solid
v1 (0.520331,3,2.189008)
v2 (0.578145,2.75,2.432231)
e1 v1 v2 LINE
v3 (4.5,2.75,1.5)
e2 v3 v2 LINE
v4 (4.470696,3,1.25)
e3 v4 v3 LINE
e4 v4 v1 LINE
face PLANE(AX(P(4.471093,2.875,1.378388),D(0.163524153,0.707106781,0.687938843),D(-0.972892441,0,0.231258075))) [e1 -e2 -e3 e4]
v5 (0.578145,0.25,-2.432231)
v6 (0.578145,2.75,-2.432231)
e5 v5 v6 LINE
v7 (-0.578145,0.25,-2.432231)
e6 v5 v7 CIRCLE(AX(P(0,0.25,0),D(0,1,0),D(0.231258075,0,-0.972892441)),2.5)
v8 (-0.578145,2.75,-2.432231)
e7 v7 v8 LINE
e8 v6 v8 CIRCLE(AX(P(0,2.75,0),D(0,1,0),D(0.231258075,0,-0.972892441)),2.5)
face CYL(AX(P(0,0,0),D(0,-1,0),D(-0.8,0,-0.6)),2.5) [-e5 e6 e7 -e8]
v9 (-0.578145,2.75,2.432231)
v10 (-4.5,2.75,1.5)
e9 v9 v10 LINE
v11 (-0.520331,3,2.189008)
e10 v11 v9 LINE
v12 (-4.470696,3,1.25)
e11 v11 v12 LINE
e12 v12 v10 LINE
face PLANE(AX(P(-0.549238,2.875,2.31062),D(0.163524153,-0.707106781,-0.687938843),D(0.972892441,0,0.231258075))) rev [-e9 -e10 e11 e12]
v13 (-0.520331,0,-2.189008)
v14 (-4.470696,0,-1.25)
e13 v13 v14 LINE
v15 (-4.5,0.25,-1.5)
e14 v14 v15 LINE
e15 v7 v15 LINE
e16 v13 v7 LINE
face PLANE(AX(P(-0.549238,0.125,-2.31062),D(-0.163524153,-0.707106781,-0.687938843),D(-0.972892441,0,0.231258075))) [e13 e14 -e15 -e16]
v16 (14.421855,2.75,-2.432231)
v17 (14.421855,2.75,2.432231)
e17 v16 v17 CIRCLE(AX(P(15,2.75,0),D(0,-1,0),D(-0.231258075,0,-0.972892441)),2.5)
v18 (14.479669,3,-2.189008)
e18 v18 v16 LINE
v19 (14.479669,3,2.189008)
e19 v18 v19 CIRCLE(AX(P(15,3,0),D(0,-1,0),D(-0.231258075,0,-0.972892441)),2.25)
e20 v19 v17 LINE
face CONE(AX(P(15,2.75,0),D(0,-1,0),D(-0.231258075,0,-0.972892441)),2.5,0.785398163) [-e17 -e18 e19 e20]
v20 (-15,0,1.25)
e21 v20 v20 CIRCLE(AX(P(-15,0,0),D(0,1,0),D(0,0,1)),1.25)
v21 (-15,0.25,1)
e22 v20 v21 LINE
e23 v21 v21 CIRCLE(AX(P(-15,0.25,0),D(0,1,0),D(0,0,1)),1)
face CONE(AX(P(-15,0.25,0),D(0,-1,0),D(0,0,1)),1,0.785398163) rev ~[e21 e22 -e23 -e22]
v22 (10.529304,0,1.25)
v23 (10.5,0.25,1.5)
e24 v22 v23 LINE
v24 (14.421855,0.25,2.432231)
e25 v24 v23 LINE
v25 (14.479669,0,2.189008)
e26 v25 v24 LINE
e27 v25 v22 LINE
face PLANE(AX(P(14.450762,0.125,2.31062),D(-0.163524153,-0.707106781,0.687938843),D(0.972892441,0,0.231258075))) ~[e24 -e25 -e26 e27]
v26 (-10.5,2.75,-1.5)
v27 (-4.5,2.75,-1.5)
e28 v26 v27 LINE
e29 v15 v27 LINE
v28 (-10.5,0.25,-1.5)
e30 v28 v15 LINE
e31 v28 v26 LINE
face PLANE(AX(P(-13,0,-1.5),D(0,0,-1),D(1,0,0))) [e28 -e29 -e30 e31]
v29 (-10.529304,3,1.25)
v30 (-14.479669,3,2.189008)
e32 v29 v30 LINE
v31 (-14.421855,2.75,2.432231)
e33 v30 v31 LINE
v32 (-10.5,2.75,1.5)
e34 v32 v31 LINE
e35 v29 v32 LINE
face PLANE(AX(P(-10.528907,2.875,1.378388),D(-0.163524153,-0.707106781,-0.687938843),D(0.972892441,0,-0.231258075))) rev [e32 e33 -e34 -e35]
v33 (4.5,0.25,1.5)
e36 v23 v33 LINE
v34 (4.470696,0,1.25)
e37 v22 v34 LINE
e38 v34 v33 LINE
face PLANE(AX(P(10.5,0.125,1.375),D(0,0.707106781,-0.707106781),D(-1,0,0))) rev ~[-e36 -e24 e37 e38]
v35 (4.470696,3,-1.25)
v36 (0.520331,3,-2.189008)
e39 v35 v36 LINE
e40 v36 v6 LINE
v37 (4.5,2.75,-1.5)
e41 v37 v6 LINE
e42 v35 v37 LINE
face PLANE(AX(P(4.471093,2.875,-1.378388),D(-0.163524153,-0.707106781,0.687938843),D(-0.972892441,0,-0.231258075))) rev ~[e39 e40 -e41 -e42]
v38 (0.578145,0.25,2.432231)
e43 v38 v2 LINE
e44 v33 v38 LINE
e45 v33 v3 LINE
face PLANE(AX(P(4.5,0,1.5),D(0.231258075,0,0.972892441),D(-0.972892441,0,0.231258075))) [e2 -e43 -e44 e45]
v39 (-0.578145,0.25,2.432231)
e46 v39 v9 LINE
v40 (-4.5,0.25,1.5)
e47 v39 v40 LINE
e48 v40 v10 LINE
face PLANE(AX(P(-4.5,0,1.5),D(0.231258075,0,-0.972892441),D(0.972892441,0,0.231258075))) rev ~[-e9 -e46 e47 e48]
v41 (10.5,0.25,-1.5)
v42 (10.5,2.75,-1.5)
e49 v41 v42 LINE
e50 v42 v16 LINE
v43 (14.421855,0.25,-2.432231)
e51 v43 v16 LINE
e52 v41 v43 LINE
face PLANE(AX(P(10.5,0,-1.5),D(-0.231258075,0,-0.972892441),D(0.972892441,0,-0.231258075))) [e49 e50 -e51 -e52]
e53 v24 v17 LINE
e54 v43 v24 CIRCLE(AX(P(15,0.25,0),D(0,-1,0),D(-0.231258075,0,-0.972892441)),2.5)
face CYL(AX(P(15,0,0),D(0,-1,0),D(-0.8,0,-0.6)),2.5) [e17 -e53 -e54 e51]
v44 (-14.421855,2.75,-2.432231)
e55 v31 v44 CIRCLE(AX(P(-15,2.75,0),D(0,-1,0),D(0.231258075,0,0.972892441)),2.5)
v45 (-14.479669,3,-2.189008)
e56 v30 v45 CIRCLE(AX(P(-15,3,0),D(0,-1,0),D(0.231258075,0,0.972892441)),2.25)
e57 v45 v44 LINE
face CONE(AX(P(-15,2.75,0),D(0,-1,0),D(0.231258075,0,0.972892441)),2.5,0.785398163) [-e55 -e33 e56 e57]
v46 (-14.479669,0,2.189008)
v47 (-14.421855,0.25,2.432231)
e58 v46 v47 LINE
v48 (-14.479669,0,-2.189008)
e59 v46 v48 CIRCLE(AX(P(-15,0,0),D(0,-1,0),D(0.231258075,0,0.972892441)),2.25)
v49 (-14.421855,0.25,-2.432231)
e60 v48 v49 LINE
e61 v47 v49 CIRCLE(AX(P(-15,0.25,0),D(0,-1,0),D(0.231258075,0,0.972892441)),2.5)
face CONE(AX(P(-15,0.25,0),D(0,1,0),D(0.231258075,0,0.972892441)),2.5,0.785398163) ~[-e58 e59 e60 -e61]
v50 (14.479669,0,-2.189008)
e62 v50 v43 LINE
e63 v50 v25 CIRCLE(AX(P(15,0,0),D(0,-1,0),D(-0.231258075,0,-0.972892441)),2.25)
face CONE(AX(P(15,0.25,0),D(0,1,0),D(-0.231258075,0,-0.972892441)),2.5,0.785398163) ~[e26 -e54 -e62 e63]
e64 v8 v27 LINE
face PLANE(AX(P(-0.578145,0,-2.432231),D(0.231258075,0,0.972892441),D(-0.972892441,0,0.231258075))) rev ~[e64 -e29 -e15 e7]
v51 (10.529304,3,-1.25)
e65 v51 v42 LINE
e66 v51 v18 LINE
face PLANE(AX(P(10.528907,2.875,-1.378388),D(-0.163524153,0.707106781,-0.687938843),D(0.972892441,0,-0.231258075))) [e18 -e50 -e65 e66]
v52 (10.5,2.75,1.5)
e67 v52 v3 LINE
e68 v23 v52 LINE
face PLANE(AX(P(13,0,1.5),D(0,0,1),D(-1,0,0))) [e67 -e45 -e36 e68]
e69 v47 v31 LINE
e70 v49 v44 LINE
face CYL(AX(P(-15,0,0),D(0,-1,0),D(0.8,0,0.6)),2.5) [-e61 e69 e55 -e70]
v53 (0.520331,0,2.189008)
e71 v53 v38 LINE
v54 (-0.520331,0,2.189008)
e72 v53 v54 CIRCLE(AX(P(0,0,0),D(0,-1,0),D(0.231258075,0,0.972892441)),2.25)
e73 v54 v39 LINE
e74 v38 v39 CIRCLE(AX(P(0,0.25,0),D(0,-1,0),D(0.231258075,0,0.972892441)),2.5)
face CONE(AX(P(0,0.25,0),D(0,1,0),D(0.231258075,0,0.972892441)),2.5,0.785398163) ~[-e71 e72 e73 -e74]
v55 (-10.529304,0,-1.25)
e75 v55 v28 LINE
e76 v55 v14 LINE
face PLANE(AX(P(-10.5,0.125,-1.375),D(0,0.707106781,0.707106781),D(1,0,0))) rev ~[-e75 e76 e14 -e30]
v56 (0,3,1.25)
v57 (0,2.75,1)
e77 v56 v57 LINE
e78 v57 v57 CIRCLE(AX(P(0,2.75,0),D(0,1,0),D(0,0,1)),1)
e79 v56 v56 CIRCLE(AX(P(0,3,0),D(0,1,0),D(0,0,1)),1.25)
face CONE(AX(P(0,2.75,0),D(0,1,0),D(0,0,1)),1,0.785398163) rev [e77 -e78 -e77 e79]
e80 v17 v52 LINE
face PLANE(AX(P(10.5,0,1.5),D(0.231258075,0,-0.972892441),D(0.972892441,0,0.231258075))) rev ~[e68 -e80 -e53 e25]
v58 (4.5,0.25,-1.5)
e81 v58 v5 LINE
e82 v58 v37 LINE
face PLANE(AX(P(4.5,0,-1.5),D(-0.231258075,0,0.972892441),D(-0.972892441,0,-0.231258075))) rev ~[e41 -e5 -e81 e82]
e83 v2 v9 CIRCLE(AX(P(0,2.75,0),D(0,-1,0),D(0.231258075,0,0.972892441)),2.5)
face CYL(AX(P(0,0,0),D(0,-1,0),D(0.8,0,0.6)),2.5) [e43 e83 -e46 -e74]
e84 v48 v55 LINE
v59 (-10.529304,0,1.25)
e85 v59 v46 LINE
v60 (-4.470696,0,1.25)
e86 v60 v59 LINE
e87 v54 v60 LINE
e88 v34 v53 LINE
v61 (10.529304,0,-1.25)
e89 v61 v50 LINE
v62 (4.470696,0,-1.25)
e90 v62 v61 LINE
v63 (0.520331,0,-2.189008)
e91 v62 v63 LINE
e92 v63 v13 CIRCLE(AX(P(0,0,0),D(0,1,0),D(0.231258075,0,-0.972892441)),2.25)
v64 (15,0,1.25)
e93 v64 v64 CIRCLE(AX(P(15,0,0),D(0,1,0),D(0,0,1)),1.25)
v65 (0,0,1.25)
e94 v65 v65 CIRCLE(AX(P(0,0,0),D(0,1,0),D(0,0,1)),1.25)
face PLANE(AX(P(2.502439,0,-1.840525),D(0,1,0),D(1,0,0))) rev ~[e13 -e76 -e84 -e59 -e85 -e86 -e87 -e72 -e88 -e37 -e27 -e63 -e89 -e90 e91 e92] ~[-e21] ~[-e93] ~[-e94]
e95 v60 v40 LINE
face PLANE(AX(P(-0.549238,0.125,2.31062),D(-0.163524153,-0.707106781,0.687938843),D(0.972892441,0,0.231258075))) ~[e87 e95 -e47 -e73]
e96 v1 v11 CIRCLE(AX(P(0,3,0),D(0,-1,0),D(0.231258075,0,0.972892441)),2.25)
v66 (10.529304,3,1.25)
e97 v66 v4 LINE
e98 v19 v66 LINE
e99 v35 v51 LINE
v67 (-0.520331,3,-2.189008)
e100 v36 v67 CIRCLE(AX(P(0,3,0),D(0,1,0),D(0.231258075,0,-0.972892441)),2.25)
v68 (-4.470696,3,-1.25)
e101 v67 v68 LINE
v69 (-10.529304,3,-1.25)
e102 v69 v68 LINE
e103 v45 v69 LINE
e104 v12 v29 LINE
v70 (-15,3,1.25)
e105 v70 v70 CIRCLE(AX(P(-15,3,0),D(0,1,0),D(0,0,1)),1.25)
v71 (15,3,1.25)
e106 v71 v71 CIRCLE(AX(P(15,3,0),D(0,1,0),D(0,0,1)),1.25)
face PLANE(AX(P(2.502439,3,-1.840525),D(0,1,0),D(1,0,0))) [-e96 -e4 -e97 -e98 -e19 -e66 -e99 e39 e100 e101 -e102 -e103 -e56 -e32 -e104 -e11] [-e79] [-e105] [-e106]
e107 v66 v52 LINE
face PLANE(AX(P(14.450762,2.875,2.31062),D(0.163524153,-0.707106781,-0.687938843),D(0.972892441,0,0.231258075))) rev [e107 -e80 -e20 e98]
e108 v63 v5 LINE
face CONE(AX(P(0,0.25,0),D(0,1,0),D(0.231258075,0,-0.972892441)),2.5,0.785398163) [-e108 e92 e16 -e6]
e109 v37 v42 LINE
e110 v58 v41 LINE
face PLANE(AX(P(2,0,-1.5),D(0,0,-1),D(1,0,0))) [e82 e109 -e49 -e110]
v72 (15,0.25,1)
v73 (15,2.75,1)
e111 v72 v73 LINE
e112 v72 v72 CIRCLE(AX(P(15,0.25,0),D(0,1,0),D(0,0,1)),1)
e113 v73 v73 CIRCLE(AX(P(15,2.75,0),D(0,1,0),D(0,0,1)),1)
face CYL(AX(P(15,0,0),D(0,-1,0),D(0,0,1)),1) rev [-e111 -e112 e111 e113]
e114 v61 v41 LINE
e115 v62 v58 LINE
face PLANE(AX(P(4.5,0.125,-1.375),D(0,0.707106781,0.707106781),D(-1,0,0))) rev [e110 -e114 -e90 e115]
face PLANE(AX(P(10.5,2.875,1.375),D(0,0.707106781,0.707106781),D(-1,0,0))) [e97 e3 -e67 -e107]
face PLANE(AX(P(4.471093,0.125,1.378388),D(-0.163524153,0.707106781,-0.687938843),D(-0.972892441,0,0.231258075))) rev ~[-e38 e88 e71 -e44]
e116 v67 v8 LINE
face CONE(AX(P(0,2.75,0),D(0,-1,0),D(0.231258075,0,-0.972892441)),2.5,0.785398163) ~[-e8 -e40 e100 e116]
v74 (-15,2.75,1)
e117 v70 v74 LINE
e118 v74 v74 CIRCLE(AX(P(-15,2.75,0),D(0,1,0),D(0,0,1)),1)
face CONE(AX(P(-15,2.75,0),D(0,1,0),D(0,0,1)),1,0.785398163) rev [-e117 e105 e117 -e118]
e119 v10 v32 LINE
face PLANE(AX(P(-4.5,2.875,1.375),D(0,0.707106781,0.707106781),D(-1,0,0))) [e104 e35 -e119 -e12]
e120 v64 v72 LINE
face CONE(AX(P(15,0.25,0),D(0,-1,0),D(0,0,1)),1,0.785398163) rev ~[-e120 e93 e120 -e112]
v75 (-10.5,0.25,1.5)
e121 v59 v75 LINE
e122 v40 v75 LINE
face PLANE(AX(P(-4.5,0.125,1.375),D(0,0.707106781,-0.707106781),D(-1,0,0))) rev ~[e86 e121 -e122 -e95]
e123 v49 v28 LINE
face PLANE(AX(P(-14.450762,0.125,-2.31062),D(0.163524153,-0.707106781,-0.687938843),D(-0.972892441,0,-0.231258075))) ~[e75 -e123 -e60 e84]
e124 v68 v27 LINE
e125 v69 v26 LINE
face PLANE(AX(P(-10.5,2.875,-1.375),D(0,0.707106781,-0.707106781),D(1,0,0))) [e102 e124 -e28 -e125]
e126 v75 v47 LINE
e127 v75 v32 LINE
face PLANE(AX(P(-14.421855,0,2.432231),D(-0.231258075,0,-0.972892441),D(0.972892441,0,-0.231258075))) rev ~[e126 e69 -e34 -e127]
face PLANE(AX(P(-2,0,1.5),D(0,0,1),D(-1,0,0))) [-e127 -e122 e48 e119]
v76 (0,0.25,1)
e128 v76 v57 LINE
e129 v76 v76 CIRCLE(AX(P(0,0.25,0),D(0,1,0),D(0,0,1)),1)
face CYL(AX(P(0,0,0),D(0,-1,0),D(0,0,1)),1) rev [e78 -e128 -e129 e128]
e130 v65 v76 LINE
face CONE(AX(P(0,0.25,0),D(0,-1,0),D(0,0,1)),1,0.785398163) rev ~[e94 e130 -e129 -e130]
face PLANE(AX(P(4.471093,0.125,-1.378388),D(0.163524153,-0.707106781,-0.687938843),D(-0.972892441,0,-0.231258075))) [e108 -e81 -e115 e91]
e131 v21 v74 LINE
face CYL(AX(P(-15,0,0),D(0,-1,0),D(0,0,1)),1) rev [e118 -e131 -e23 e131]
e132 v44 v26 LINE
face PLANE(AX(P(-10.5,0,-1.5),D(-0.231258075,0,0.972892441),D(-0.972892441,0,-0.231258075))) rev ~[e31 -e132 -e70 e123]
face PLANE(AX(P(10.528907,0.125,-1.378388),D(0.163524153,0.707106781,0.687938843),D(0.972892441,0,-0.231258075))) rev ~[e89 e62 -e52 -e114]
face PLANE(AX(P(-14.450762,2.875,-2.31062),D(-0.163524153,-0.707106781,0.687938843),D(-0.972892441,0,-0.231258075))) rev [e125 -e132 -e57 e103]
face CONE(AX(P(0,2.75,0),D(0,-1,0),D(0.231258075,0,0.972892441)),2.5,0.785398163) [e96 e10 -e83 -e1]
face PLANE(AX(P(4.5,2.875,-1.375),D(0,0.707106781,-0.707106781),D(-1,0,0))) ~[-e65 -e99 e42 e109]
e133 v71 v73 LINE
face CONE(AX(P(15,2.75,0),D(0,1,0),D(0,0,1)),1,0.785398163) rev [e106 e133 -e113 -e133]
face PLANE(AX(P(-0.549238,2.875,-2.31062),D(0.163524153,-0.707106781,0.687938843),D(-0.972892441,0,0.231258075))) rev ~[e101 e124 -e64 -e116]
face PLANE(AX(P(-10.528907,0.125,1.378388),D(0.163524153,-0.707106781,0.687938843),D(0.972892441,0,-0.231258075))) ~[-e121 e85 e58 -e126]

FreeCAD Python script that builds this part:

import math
import FreeCAD as App
import Part
import Sketcher

V = App.Vector


def edges_at(feature, points):
    """Names of the edges that pass closest to the given points."""
    edges = feature.Shape.Edges
    near = lambda p: min(range(len(edges)), key=lambda i: edges[i].distToShape(Part.Vertex(*p))[0])
    return sorted({f"Edge{near(p) + 1}" for p in points})

doc = App.newDocument("Part")
params = doc.addObject("Spreadsheet::Sheet", "Params")
for row, (alias, value) in enumerate([
    ("sketch1_diameter", "2 mm"),
    ("sketch1_radius", "2.5 mm"),
    ("sketch1_width", "11 mm"),
    ("pad1_length", "3 mm"),
    ("sketch2_radius", "2.5 mm"),
    ("sketch2_width", "2.5 mm"),
    ("pad2_length", "3 mm"),
    ("chamfer_size", "0.25 mm"),
], start=1):
    params.set(f"A{row}", alias)
    params.set(f"B{row}", "=" + value)
    params.setAlias(f"B{row}", alias)

body = doc.addObject("PartDesign::Body", "Body")

# Sketch on XZ plane
sketch1 = body.newObject("Sketcher::SketchObject", "Sketch")
sketch1.AttachmentSupport = (doc.getObject("XZ_Plane"), [""])
sketch1.MapMode = "FlatFace"
sketch1.addGeometry([
    Part.LineSegment(V(-2, -1.5, 0), V(-13, -1.5, 0)),  # 0
    Part.ArcOfCircle(Part.Circle(V(-15, 0, 0), V(0, 0, 1), 2.5), math.radians(37), math.radians(323)),  # 1
    Part.LineSegment(V(-13, 1.5, 0), V(-2, 1.5, 0)),  # 2
    Part.ArcOfCircle(Part.Circle(V(0, 0, 0), V(0, 0, 1), 2.5), math.radians(37), math.radians(143)),  # 3
    Part.LineSegment(V(2, 1.5, 0), V(13, 1.5, 0)),  # 4
    Part.ArcOfCircle(Part.Circle(V(15, 0, 0), V(0, 0, 1), 2.5), math.radians(-143), math.radians(143)),  # 5
    Part.LineSegment(V(13, -1.5, 0), V(2, -1.5, 0)),  # 6
    Part.ArcOfCircle(Part.Circle(V(0, 0, 0), V(0, 0, 1), 2.5), math.radians(-143), math.radians(-37)),  # 7
    Part.Circle(V(15, 0, 0), V(0, 0, 1), 1),  # 8
    Part.Circle(V(0, 0, 0), V(0, 0, 1), 1),  # 9
    Part.Circle(V(-15, 0, 0), V(0, 0, 1), 1),  # 10
], False)
sketch1.addConstraint([
    Sketcher.Constraint("Coincident", 0, 2, 1, 2),
    Sketcher.Constraint("Coincident", 1, 1, 2, 1),
    Sketcher.Constraint("Coincident", 2, 2, 3, 2),
    Sketcher.Constraint("Coincident", 3, 1, 4, 1),
    Sketcher.Constraint("Coincident", 4, 2, 5, 2),
    Sketcher.Constraint("Coincident", 5, 1, 6, 1),
    Sketcher.Constraint("Coincident", 6, 2, 7, 2),
    Sketcher.Constraint("Coincident", 7, 1, 0, 1),
    Sketcher.Constraint("Horizontal", 0),
    Sketcher.Constraint("Horizontal", 2),
    Sketcher.Constraint("Horizontal", 4),
    Sketcher.Constraint("Horizontal", 6),
    Sketcher.Constraint("Coincident", 3, 3, -1, 1),
    Sketcher.Constraint("Coincident", 7, 3, -1, 1),
    Sketcher.Constraint("Coincident", 9, 3, -1, 1),
    Sketcher.Constraint("Coincident", 8, 3, 5, 3),
    Sketcher.Constraint("Coincident", 10, 3, 1, 3),
    Sketcher.Constraint("Equal", 1, 3),
    Sketcher.Constraint("Equal", 3, 5),
    Sketcher.Constraint("Equal", 5, 7),
    Sketcher.Constraint("Equal", 8, 9),
    Sketcher.Constraint("Equal", 9, 10),
    Sketcher.Constraint("Symmetric", 1, 3, 5, 3, -1, 1),
    Sketcher.Constraint("Symmetric", 1, 1, 4, 2, -2),
    Sketcher.Constraint("Horizontal", 0, 2, 5, 1),
    Sketcher.Constraint("Vertical", 0, 2, 1, 1),
    Sketcher.Constraint("Diameter", 8, 2.0),
    Sketcher.Constraint("Radius", 1, 2.5),
    Sketcher.Constraint("DistanceX", 0, 2, 0, 1, 11.0),
    Sketcher.Constraint("DistanceX", 1, 3, -1, 1, 15.0),
])
sketch1.setExpression("Constraints[26]", "Params.sketch1_diameter")
sketch1.setExpression("Constraints[27]", "Params.sketch1_radius")
sketch1.setExpression("Constraints[28]", "Params.sketch1_width")
pad1 = body.newObject("PartDesign::Pad", "Pad")
pad1.Profile = sketch1
pad1.setExpression("Length", "Params.pad1_length")
pad1.Reversed = True

# Sketch on XZ plane
sketch2 = body.newObject("Sketcher::SketchObject", "Sketch001")
sketch2.AttachmentSupport = (doc.getObject("XZ_Plane"), [""])
sketch2.MapMode = "FlatFace"
sketch2.addGeometry([
    Part.LineSegment(V(4.5, -1.5, 0), V(0.6, -2.4, 0)),  # 0
    Part.ArcOfCircle(Part.Circle(V(0, 0, 0), V(0, 0, 1), 2.5), math.radians(-77), math.radians(-37)),  # 1
    Part.LineSegment(V(2, -1.5, 0), V(4.5, -1.5, 0)),  # 2
    Part.LineSegment(V(0.6, 2.4, 0), V(4.5, 1.5, 0)),  # 3
    Part.LineSegment(V(4.5, 1.5, 0), V(2, 1.5, 0)),  # 4
    Part.ArcOfCircle(Part.Circle(V(0, 0, 0), V(0, 0, 1), 2.5), math.radians(37), math.radians(77)),  # 5
    Part.LineSegment(V(14.4, -2.4, 0), V(10.5, -1.5, 0)),  # 6
    Part.LineSegment(V(10.5, -1.5, 0), V(13, -1.5, 0)),  # 7
    Part.ArcOfCircle(Part.Circle(V(15, 0, 0), V(0, 0, 1), 2.5), math.radians(-143), math.radians(-103)),  # 8
    Part.LineSegment(V(10.5, 1.5, 0), V(14.4, 2.4, 0)),  # 9
    Part.ArcOfCircle(Part.Circle(V(15, 0, 0), V(0, 0, 1), 2.5), math.radians(103), math.radians(143)),  # 10
    Part.LineSegment(V(13, 1.5, 0), V(10.5, 1.5, 0)),  # 11
    Part.LineSegment(V(-4.5, -1.5, 0), V(-2, -1.5, 0)),  # 12
    Part.ArcOfCircle(Part.Circle(V(0, 0, 0), V(0, 0, 1), 2.5), math.radians(-143), math.radians(-103)),  # 13
    Part.LineSegment(V(-0.6, -2.4, 0), V(-4.5, -1.5, 0)),  # 14
    Part.LineSegment(V(-10.5, 1.5, 0), V(-13, 1.5, 0)),  # 15
    Part.ArcOfCircle(Part.Circle(V(-15, 0, 0), V(0, 0, 1), 2.5), math.radians(37), math.radians(77)),  # 16
    Part.LineSegment(V(-14.4, 2.4, 0), V(-10.5, 1.5, 0)),  # 17
    Part.LineSegment(V(-13, -1.5, 0), V(-10.5, -1.5, 0)),  # 18
    Part.LineSegment(V(-10.5, -1.5, 0), V(-14.4, -2.4, 0)),  # 19
    Part.ArcOfCircle(Part.Circle(V(-15, 0, 0), V(0, 0, 1), 2.5), math.radians(-77), math.radians(-37)),  # 20
    Part.LineSegment(V(-2, 1.5, 0), V(-4.5, 1.5, 0)),  # 21
    Part.LineSegment(V(-4.5, 1.5, 0), V(-0.6, 2.4, 0)),  # 22
    Part.ArcOfCircle(Part.Circle(V(0, 0, 0), V(0, 0, 1), 2.5), math.radians(103), math.radians(143)),  # 23
], False)
sketch2.addConstraint([
    Sketcher.Constraint("Tangent", 0, 2, 1, 1),
    Sketcher.Constraint("Coincident", 1, 2, 2, 1),
    Sketcher.Constraint("Coincident", 2, 2, 0, 1),
    Sketcher.Constraint("Coincident", 3, 2, 4, 1),
    Sketcher.Constraint("Coincident", 4, 2, 5, 1),
    Sketcher.Constraint("Tangent", 5, 2, 3, 1),
    Sketcher.Constraint("Coincident", 6, 2, 7, 1),
    Sketcher.Constraint("Coincident", 7, 2, 8, 1),
    Sketcher.Constraint("Tangent", 8, 2, 6, 1),
    Sketcher.Constraint("Tangent", 9, 2, 10, 1),
    Sketcher.Constraint("Coincident", 10, 2, 11, 1),
    Sketcher.Constraint("Coincident", 11, 2, 9, 1),
    Sketcher.Constraint("Coincident", 12, 2, 13, 1),
    Sketcher.Constraint("Tangent", 13, 2, 14, 1),
    Sketcher.Constraint("Coincident", 14, 2, 12, 1),
    Sketcher.Constraint("Coincident", 15, 2, 16, 1),
    Sketcher.Constraint("Tangent", 16, 2, 17, 1),
    Sketcher.Constraint("Coincident", 17, 2, 15, 1),
    Sketcher.Constraint("Coincident", 18, 2, 19, 1),
    Sketcher.Constraint("Tangent", 19, 2, 20, 1),
    Sketcher.Constraint("Coincident", 20, 2, 18, 1),
    Sketcher.Constraint("Coincident", 21, 2, 22, 1),
    Sketcher.Constraint("Tangent", 22, 2, 23, 1),
    Sketcher.Constraint("Coincident", 23, 2, 21, 1),
    Sketcher.Constraint("Horizontal", 2),
    Sketcher.Constraint("Horizontal", 4),
    Sketcher.Constraint("Horizontal", 7),
    Sketcher.Constraint("Horizontal", 11),
    Sketcher.Constraint("Horizontal", 12),
    Sketcher.Constraint("Horizontal", 15),
    Sketcher.Constraint("Horizontal", 18),
    Sketcher.Constraint("Horizontal", 21),
    Sketcher.Constraint("Coincident", 1, 3, -1, 1),
    Sketcher.Constraint("Coincident", 5, 3, -1, 1),
    Sketcher.Constraint("Coincident", 13, 3, -1, 1),
    Sketcher.Constraint("Coincident", 23, 3, -1, 1),
    Sketcher.Constraint("Coincident", 10, 3, 8, 3),
    Sketcher.Constraint("Coincident", 20, 3, 16, 3),
    Sketcher.Constraint("Equal", 1, 5),
    Sketcher.Constraint("Equal", 5, 8),
    Sketcher.Constraint("Equal", 8, 10),
    Sketcher.Constraint("Equal", 10, 13),
    Sketcher.Constraint("Equal", 13, 16),
    Sketcher.Constraint("Equal", 16, 20),
    Sketcher.Constraint("Equal", 20, 23),
    Sketcher.Constraint("Symmetric", 8, 3, 16, 3, -1, 1),
    Sketcher.Constraint("Symmetric", 3, 2, 14, 2, -1, 1),
    Sketcher.Constraint("Symmetric", 6, 2, 17, 2, -1, 1),
    Sketcher.Constraint("Symmetric", 11, 2, 18, 2, -1, 1),
    Sketcher.Constraint("Symmetric", 2, 2, 21, 2, -1, 1),
    Sketcher.Constraint("Symmetric", 2, 2, 14, 2, -2),
    Sketcher.Constraint("Symmetric", 10, 2, 15, 2, -2),
    Sketcher.Constraint("Parallel", 3, 6),
    Sketcher.Constraint("Parallel", 0, 9),
    Sketcher.Constraint("Horizontal", 2, 2, 6, 2),
    Sketcher.Constraint("Radius", 1, 2.5),
    Sketcher.Constraint("DistanceX", 2, 1, 2, 2, 2.5),
    Sketcher.Constraint("DistanceX", -1, 1, 8, 3, 15.0),
    Sketcher.Constraint("DistanceX", -1, 1, 1, 2, 2.0),
])
sketch2.setExpression("Constraints[55]", "Params.sketch2_radius")
sketch2.setExpression("Constraints[56]", "Params.sketch2_width")
pad2 = body.newObject("PartDesign::Pad", "Pad001")
pad2.Profile = sketch2
pad2.setExpression("Length", "Params.pad2_length")
pad2.Reversed = True
doc.recompute()

chamfer = body.newObject("PartDesign::Chamfer", "Chamfer")
chamfer.Base = (pad2, edges_at(pad2, [
    (-7.5, 0, -1.5),
    (-7.5, 3, -1.5),
    (-2.539, 0, -1.966),
    (-2.539, 3, -1.966),
    (-15, 0, -1),
    (-15, 3, -1),
    (0, 0, -1),
    (0, 3, -1),
    (15, 0, -1),
    (15, 3, -1),
    (0, 0, -2.5),
    (0, 3, -2.5),
    (2.539, 0, -1.966),
    (2.539, 3, -1.966),
    (-17.5, 0, 0),
    (-17.5, 3, 0),
    (-12.461, 0, -1.966),
    (-12.461, 3, -1.966),
    (-7.5, 0, 1.5),
    (-7.5, 3, 1.5),
    (-12.461, 0, 1.966),
    (-12.461, 3, 1.966),
    (0, 0, 2.5),
    (0, 3, 2.5),
    (-2.539, 0, 1.966),
    (-2.539, 3, 1.966),
    (7.5, 0, 1.5),
    (7.5, 3, 1.5),
    (2.539, 0, 1.966),
    (2.539, 3, 1.966),
    (17.5, 0, 0),
    (17.5, 3, 0),
    (12.461, 0, 1.966),
    (12.461, 3, 1.966),
    (7.5, 0, -1.5),
    (7.5, 3, -1.5),
    (12.461, 0, -1.966),
    (12.461, 3, -1.966),
]))
chamfer.setExpression("Size", "Params.chamfer_size")

doc.recompute()
